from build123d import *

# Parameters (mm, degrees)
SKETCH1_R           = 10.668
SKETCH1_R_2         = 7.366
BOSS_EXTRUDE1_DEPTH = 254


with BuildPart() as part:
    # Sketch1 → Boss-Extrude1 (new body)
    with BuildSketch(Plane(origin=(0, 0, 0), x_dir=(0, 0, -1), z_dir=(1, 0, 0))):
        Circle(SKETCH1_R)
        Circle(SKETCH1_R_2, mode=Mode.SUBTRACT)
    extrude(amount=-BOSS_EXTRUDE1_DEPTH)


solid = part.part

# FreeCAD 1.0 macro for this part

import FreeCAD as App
import Part
import Sketcher
Q = App.Units.Quantity

doc = App.newDocument("Part")
body = doc.addObject("PartDesign::Body", "Body")

sketch1 = body.newObject("Sketcher::SketchObject", "Sketch")
sketch1.AttachmentSupport = (doc.getObject("YZ_Plane"), [""])
sketch1.MapMode = "FlatFace"
sketch1.addGeometry(Part.Circle(App.Vector(0, 0, 0), App.Vector(0, 0, 1), 11), False)
sketch1.addGeometry(Part.Circle(App.Vector(0, 0, 0), App.Vector(0, 0, 1), 7), False)
sketch1.addConstraint(Sketcher.Constraint("Coincident", 0, 3, -1, 1))
sketch1.addConstraint(Sketcher.Constraint("Coincident", 1, 3, -1, 1))
sketch1.addConstraint(Sketcher.Constraint("Diameter", 0, Q("0.84 in")))
sketch1.addConstraint(Sketcher.Constraint("Diameter", 1, Q("0.58 in")))
pad1 = body.newObject("PartDesign::Pad", "Pad")
pad1.Profile = sketch1
pad1.Length = Q("10 in")
pad1.Reversed = True

doc.recompute()
